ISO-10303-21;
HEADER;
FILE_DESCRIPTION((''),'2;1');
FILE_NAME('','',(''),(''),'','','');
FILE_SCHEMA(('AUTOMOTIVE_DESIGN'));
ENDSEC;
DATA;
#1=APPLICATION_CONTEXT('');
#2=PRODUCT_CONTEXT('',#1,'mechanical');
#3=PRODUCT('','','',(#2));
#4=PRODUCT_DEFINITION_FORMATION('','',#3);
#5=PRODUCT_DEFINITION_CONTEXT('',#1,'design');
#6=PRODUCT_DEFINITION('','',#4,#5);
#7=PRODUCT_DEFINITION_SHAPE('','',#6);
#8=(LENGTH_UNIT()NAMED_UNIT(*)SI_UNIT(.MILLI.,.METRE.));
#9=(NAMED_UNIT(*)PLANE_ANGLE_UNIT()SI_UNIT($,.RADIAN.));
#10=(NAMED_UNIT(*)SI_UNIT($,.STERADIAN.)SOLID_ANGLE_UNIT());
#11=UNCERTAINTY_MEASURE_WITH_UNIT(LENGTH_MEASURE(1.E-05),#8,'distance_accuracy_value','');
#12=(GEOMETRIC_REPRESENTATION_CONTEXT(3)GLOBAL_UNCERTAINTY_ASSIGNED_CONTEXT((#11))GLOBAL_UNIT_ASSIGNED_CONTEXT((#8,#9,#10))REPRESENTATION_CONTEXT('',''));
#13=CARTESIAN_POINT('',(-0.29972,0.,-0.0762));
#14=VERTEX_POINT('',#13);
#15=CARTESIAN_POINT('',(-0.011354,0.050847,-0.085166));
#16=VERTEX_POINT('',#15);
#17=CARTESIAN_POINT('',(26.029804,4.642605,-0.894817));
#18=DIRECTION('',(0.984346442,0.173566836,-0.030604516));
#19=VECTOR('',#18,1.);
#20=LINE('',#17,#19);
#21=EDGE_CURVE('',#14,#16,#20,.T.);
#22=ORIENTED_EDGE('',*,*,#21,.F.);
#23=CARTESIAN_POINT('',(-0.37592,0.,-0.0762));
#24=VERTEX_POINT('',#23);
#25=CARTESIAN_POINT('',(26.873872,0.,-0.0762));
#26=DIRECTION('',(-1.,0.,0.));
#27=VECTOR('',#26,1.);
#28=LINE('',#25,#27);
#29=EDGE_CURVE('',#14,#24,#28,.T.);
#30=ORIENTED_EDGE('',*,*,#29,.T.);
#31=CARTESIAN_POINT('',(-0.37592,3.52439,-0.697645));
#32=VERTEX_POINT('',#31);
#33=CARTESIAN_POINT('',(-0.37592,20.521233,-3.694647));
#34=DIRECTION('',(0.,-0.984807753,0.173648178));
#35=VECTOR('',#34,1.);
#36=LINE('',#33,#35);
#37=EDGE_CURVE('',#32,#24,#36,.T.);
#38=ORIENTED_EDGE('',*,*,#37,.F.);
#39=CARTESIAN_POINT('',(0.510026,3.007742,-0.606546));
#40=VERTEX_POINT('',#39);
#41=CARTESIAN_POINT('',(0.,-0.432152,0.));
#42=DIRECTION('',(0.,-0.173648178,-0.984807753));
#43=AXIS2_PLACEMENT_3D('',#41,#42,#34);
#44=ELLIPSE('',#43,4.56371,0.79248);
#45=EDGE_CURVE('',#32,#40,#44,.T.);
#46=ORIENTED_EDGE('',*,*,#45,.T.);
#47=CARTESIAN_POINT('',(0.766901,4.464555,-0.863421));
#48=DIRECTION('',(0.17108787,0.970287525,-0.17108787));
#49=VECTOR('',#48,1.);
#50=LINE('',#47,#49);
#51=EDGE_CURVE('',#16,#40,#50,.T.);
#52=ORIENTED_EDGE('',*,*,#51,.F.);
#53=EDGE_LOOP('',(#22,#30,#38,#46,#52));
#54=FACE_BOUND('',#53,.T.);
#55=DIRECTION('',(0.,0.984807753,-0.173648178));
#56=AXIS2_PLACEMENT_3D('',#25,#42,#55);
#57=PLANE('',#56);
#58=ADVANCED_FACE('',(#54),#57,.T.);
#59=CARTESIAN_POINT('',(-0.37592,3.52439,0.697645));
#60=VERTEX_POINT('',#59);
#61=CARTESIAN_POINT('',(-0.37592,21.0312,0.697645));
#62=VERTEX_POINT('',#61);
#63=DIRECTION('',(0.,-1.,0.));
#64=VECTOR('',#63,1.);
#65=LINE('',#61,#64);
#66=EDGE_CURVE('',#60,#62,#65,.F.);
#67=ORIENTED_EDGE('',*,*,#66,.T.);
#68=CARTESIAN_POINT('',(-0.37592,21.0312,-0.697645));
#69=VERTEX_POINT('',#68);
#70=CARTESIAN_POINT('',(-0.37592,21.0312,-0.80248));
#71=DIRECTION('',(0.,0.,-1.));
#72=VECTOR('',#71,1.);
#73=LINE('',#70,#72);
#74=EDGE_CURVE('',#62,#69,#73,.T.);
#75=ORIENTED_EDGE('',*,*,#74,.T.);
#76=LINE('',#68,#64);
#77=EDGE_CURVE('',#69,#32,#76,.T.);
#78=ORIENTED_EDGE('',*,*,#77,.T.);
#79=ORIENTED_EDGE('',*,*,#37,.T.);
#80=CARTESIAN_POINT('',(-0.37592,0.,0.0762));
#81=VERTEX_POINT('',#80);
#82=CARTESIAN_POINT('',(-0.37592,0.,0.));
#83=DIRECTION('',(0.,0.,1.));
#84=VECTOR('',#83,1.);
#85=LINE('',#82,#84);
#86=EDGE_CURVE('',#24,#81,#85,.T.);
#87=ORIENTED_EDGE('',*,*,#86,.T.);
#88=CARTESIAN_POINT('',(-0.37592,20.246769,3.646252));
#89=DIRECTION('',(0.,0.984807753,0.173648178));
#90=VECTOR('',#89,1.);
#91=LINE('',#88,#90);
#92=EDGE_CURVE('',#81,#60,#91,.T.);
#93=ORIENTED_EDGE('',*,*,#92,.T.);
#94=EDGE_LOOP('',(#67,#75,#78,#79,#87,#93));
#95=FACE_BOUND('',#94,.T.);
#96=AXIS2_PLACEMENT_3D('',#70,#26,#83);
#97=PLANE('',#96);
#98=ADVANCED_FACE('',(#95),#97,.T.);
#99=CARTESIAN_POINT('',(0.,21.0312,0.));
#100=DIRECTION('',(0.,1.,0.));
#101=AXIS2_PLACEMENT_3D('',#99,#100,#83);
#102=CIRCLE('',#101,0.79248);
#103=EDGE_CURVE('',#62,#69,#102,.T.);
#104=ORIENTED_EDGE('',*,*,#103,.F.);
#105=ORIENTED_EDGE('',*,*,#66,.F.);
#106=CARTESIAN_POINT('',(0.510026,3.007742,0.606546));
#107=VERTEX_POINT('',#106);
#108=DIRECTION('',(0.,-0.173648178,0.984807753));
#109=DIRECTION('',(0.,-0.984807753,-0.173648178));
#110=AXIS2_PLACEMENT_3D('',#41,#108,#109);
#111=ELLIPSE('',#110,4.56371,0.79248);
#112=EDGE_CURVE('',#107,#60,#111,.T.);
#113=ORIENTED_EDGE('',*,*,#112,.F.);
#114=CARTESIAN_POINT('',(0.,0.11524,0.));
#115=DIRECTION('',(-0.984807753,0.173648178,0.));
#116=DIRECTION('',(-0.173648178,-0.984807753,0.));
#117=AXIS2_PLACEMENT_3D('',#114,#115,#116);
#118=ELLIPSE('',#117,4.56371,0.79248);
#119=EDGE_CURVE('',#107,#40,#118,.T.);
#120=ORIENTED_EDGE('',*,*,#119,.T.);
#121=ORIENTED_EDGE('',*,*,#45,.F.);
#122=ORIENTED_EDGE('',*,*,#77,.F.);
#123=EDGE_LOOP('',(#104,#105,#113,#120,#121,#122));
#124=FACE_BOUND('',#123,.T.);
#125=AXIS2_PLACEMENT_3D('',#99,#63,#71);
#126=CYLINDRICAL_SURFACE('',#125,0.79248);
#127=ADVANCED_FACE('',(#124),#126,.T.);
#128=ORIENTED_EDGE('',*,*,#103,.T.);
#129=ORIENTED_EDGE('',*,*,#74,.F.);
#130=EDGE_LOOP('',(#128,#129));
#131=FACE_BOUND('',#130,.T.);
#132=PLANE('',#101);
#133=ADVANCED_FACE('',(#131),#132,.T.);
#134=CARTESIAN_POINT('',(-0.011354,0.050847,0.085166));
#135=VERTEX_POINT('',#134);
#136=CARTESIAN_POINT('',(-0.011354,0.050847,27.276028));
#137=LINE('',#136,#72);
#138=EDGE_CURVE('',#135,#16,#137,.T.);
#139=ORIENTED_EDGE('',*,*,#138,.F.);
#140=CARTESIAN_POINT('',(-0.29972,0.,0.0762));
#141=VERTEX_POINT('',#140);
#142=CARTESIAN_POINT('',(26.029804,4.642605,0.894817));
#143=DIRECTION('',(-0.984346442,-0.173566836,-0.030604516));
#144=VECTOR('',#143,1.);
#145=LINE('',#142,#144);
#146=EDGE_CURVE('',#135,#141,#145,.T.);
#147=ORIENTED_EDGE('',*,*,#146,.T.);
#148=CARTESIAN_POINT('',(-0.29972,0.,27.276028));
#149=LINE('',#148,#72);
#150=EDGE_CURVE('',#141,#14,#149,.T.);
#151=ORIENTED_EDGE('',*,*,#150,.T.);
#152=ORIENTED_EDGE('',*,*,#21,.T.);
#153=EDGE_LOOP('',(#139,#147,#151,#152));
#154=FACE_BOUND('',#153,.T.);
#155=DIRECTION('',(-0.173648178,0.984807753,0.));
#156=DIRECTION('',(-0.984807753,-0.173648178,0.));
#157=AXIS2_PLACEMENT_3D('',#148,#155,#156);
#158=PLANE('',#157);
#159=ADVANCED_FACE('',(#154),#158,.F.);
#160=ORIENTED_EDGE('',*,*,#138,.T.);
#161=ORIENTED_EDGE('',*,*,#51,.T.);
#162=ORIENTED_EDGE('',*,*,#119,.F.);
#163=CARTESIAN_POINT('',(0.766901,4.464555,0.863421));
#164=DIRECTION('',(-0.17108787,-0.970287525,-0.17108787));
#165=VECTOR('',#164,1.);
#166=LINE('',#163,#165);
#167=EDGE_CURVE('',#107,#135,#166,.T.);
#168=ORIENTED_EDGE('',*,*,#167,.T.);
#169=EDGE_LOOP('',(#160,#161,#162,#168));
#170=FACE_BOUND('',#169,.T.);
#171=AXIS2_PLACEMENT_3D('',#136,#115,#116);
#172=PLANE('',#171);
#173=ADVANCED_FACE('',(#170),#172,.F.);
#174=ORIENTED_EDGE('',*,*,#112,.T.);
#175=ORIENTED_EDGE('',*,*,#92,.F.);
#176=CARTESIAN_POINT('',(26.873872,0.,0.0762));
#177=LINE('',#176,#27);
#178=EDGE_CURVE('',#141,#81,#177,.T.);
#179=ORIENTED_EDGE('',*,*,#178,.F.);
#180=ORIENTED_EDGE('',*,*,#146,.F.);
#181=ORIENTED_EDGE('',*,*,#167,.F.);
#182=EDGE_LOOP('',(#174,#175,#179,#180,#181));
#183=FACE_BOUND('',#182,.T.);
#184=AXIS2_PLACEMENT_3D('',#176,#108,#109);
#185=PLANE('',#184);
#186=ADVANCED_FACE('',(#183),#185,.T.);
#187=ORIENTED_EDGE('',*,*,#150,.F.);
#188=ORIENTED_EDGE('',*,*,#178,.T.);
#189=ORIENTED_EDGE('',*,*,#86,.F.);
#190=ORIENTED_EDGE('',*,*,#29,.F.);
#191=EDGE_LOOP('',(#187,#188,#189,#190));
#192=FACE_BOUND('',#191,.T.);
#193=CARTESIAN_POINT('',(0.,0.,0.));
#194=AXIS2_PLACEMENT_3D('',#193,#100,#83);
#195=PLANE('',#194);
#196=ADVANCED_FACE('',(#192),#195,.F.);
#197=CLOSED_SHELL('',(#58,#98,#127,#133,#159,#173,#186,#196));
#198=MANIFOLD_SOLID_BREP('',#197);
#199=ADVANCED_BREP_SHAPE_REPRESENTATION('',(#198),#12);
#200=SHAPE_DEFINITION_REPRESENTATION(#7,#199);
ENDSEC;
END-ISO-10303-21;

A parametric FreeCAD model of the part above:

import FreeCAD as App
import Part
import Sketcher
Q = App.Units.Quantity


def add_polygon(sketch, points):
    """Adds a closed chain of lines whose ends are joined by coincident constraints."""
    first, n = sketch.GeometryCount, len(points)
    for a, b in zip(points, points[1:] + points[:1]):
        sketch.addGeometry(Part.LineSegment(App.Vector(*a, 0), App.Vector(*b, 0)), False)
    for i in range(n):
        sketch.addConstraint(Sketcher.Constraint("Coincident", first + i, 2, first + (i + 1) % n, 1))

doc = App.newDocument("Part")
body = doc.addObject("PartDesign::Body", "Body")

sketch1 = body.newObject("Sketcher::SketchObject", "Sketch")
sketch1.AttachmentSupport = (doc.getObject("XZ_Plane"), [""])
sketch1.MapMode = "FlatFace"
sketch1.addGeometry(Part.Circle(App.Vector(0, 0, 0), App.Vector(0, 0, 1), 0.8), False)
sketch1.addConstraint([
    Sketcher.Constraint("Coincident", 0, 3, -1, 1),
    Sketcher.Constraint("Diameter", 0, Q("0.0624 in")),
])
pad1 = body.newObject("PartDesign::Pad", "Pad")
pad1.Profile = sketch1
pad1.Length = Q("0.828 in")
pad1.Reversed = True

sketch2 = body.newObject("Sketcher::SketchObject", "Sketch001")
sketch2.AttachmentSupport = (doc.getObject("XZ_Plane"), [""])
sketch2.MapMode = "FlatFace"
add_polygon(sketch2, [(-2, -0.8), (-2, 0.8), (-0.4, 0.8), (-0.4, -0.8)])
sketch2.addConstraint([
    Sketcher.Constraint("Vertical", 0),
    Sketcher.Constraint("Horizontal", 1),
    Sketcher.Constraint("Vertical", 2),
    Sketcher.Constraint("Horizontal", 3),
    Sketcher.Constraint("Equal", 3, 0),
    Sketcher.Constraint("DistanceX", 1, 2, -1, 1, Q("0.0148 in")),
    Sketcher.Constraint("DistanceX", 1, 1, 1, 2, 1.60496),
    Sketcher.Constraint("DistanceY", -1, 1, 0, 2, 0.80248),
])
pocket1 = body.newObject("PartDesign::Pocket", "Pocket")
pocket1.Profile = sketch2
pocket1.Type = "ThroughAll"

sketch3 = body.newObject("Sketcher::SketchObject", "Sketch002")
sketch3.AttachmentSupport = (doc.getObject("YZ_Plane"), [""])
sketch3.MapMode = "FlatFace"
add_polygon(sketch3, [(21.03, 3.78), (73.27, 13), (-32.82, 13), (-32.82, -13), (73.27, -13), (21.03, -3.78), (0, -0.08), (0, 0.08)])
sketch3.addConstraint([
    Sketcher.Constraint("Horizontal", 1),
    Sketcher.Constraint("Vertical", 2),
    Sketcher.Constraint("Horizontal", 3),
    Sketcher.Constraint("Vertical", 6),
    Sketcher.Constraint("Symmetric", 5, 2, 6, 2, -1, 1),
    Sketcher.Constraint("Symmetric", 0, 2, 3, 2, -1),
    Sketcher.Constraint("Symmetric", 4, 2, 7, 2, -1),
    Sketcher.Constraint("Parallel", 4, 5),
    Sketcher.Constraint("Angle", 0, Q("10 deg")),
    Sketcher.Constraint("DistanceY", 6, 1, 6, 2, Q("0.006 in")),
    Sketcher.Constraint("DistanceX", -1, 1, 4, 2, Q("0.828 in")),
    Sketcher.Constraint("DistanceX", 1, 2, 1, 1, 106.093971),
    Sketcher.Constraint("DistanceY", 2, 2, 2, 1, 25.992161),
])
pocket2 = body.newObject("PartDesign::Pocket", "Pocket001")
pocket2.Profile = sketch3
pocket2.Type = "ThroughAll"
pocket2.Midplane = True

sketch4 = body.newObject("Sketcher::SketchObject", "Sketch003")
sketch4.AttachmentSupport = (doc.getObject("XY_Plane"), [""])
sketch4.MapMode = "FlatFace"
add_polygon(sketch4, [(-0.3, 0), (-53.22, 0), (25.17, -70.89), (91.25, 2.18), (12.86, 73.07), (3.69, 21.03), (-0.01, 0.05)])
sketch4.addConstraint([
    Sketcher.Constraint("Horizontal", 0),
    Sketcher.Constraint("PointOnObject", 0, 2, -1),
    Sketcher.Constraint("Perpendicular", 1, 2),
    Sketcher.Constraint("Perpendicular", 2, 3),
    Sketcher.Constraint("Parallel", 4, 5),
    Sketcher.Constraint("Equal", 1, 3),
    Sketcher.Constraint("Angle", 4, Q("-100 deg")),
    Sketcher.Constraint("Angle", 6, Q("-170 deg")),
    Sketcher.Constraint("DistanceY", -1, 1, 4, 2, Q("0.828 in")),
    Sketcher.Constraint("DistanceX", 6, 2, -1, 1, Q("0.0118 in")),
    Sketcher.Constraint("Distance", 1, 105.681009),
    Sketcher.Constraint("Distance", 5, 21.304009),
    Sketcher.Constraint("DistanceX", 0, 2, 0, 1, 52.916705),
    Sketcher.Constraint("DistanceX", -1, 1, 1, 2, 25.16576),
])
pocket3 = body.newObject("PartDesign::Pocket", "Pocket002")
pocket3.Profile = sketch4
pocket3.Type = "ThroughAll"
pocket3.Midplane = True

doc.recompute()
